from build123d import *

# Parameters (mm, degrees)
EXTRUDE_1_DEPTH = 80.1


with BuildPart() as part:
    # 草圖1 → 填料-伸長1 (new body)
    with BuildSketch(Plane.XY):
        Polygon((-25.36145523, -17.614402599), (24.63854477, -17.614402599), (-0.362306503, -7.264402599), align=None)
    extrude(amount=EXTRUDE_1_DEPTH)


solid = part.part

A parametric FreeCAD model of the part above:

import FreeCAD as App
import Part
import Sketcher
Q = App.Units.Quantity

doc = App.newDocument("Part")
body = doc.addObject("PartDesign::Body", "Body")

sketch1 = body.newObject("Sketcher::SketchObject", "Sketch")
sketch1.AttachmentSupport = (doc.getObject("XY_Plane"), [""])
sketch1.MapMode = "FlatFace"
sketch1.addGeometry(Part.LineSegment(App.Vector(-25, -18, 0), App.Vector(25, -18, 0)), False)
sketch1.addGeometry(Part.LineSegment(App.Vector(25, -18, 0), App.Vector(0, -7, 0)), False)
sketch1.addGeometry(Part.LineSegment(App.Vector(0, -7, 0), App.Vector(-25, -18, 0)), False)
sketch1.addConstraint(Sketcher.Constraint("Coincident", 0, 2, 1, 1))
sketch1.addConstraint(Sketcher.Constraint("Coincident", 1, 2, 2, 1))
sketch1.addConstraint(Sketcher.Constraint("Coincident", 2, 2, 0, 1))
sketch1.addConstraint(Sketcher.Constraint("Horizontal", 0))
sketch1.addConstraint(Sketcher.Constraint("DistanceX", 0, 1, 0, 2, Q("50 mm")))
sketch1.addConstraint(Sketcher.Constraint("DistanceY", 0, 2, 1, 2, Q("10.35 mm")))
sketch1.addConstraint(Sketcher.Constraint("Distance", 1, Q("27.058549 mm")))
sketch1.addConstraint(Sketcher.Constraint("DistanceX", -1, 1, 0, 2, Q("24.638545 mm")))
sketch1.addConstraint(Sketcher.Constraint("DistanceY", 0, 2, -1, 1, Q("17.614403 mm")))
pad1 = body.newObject("PartDesign::Pad", "Pad")
pad1.Profile = sketch1
pad1.Length = 80.1

doc.recompute()
